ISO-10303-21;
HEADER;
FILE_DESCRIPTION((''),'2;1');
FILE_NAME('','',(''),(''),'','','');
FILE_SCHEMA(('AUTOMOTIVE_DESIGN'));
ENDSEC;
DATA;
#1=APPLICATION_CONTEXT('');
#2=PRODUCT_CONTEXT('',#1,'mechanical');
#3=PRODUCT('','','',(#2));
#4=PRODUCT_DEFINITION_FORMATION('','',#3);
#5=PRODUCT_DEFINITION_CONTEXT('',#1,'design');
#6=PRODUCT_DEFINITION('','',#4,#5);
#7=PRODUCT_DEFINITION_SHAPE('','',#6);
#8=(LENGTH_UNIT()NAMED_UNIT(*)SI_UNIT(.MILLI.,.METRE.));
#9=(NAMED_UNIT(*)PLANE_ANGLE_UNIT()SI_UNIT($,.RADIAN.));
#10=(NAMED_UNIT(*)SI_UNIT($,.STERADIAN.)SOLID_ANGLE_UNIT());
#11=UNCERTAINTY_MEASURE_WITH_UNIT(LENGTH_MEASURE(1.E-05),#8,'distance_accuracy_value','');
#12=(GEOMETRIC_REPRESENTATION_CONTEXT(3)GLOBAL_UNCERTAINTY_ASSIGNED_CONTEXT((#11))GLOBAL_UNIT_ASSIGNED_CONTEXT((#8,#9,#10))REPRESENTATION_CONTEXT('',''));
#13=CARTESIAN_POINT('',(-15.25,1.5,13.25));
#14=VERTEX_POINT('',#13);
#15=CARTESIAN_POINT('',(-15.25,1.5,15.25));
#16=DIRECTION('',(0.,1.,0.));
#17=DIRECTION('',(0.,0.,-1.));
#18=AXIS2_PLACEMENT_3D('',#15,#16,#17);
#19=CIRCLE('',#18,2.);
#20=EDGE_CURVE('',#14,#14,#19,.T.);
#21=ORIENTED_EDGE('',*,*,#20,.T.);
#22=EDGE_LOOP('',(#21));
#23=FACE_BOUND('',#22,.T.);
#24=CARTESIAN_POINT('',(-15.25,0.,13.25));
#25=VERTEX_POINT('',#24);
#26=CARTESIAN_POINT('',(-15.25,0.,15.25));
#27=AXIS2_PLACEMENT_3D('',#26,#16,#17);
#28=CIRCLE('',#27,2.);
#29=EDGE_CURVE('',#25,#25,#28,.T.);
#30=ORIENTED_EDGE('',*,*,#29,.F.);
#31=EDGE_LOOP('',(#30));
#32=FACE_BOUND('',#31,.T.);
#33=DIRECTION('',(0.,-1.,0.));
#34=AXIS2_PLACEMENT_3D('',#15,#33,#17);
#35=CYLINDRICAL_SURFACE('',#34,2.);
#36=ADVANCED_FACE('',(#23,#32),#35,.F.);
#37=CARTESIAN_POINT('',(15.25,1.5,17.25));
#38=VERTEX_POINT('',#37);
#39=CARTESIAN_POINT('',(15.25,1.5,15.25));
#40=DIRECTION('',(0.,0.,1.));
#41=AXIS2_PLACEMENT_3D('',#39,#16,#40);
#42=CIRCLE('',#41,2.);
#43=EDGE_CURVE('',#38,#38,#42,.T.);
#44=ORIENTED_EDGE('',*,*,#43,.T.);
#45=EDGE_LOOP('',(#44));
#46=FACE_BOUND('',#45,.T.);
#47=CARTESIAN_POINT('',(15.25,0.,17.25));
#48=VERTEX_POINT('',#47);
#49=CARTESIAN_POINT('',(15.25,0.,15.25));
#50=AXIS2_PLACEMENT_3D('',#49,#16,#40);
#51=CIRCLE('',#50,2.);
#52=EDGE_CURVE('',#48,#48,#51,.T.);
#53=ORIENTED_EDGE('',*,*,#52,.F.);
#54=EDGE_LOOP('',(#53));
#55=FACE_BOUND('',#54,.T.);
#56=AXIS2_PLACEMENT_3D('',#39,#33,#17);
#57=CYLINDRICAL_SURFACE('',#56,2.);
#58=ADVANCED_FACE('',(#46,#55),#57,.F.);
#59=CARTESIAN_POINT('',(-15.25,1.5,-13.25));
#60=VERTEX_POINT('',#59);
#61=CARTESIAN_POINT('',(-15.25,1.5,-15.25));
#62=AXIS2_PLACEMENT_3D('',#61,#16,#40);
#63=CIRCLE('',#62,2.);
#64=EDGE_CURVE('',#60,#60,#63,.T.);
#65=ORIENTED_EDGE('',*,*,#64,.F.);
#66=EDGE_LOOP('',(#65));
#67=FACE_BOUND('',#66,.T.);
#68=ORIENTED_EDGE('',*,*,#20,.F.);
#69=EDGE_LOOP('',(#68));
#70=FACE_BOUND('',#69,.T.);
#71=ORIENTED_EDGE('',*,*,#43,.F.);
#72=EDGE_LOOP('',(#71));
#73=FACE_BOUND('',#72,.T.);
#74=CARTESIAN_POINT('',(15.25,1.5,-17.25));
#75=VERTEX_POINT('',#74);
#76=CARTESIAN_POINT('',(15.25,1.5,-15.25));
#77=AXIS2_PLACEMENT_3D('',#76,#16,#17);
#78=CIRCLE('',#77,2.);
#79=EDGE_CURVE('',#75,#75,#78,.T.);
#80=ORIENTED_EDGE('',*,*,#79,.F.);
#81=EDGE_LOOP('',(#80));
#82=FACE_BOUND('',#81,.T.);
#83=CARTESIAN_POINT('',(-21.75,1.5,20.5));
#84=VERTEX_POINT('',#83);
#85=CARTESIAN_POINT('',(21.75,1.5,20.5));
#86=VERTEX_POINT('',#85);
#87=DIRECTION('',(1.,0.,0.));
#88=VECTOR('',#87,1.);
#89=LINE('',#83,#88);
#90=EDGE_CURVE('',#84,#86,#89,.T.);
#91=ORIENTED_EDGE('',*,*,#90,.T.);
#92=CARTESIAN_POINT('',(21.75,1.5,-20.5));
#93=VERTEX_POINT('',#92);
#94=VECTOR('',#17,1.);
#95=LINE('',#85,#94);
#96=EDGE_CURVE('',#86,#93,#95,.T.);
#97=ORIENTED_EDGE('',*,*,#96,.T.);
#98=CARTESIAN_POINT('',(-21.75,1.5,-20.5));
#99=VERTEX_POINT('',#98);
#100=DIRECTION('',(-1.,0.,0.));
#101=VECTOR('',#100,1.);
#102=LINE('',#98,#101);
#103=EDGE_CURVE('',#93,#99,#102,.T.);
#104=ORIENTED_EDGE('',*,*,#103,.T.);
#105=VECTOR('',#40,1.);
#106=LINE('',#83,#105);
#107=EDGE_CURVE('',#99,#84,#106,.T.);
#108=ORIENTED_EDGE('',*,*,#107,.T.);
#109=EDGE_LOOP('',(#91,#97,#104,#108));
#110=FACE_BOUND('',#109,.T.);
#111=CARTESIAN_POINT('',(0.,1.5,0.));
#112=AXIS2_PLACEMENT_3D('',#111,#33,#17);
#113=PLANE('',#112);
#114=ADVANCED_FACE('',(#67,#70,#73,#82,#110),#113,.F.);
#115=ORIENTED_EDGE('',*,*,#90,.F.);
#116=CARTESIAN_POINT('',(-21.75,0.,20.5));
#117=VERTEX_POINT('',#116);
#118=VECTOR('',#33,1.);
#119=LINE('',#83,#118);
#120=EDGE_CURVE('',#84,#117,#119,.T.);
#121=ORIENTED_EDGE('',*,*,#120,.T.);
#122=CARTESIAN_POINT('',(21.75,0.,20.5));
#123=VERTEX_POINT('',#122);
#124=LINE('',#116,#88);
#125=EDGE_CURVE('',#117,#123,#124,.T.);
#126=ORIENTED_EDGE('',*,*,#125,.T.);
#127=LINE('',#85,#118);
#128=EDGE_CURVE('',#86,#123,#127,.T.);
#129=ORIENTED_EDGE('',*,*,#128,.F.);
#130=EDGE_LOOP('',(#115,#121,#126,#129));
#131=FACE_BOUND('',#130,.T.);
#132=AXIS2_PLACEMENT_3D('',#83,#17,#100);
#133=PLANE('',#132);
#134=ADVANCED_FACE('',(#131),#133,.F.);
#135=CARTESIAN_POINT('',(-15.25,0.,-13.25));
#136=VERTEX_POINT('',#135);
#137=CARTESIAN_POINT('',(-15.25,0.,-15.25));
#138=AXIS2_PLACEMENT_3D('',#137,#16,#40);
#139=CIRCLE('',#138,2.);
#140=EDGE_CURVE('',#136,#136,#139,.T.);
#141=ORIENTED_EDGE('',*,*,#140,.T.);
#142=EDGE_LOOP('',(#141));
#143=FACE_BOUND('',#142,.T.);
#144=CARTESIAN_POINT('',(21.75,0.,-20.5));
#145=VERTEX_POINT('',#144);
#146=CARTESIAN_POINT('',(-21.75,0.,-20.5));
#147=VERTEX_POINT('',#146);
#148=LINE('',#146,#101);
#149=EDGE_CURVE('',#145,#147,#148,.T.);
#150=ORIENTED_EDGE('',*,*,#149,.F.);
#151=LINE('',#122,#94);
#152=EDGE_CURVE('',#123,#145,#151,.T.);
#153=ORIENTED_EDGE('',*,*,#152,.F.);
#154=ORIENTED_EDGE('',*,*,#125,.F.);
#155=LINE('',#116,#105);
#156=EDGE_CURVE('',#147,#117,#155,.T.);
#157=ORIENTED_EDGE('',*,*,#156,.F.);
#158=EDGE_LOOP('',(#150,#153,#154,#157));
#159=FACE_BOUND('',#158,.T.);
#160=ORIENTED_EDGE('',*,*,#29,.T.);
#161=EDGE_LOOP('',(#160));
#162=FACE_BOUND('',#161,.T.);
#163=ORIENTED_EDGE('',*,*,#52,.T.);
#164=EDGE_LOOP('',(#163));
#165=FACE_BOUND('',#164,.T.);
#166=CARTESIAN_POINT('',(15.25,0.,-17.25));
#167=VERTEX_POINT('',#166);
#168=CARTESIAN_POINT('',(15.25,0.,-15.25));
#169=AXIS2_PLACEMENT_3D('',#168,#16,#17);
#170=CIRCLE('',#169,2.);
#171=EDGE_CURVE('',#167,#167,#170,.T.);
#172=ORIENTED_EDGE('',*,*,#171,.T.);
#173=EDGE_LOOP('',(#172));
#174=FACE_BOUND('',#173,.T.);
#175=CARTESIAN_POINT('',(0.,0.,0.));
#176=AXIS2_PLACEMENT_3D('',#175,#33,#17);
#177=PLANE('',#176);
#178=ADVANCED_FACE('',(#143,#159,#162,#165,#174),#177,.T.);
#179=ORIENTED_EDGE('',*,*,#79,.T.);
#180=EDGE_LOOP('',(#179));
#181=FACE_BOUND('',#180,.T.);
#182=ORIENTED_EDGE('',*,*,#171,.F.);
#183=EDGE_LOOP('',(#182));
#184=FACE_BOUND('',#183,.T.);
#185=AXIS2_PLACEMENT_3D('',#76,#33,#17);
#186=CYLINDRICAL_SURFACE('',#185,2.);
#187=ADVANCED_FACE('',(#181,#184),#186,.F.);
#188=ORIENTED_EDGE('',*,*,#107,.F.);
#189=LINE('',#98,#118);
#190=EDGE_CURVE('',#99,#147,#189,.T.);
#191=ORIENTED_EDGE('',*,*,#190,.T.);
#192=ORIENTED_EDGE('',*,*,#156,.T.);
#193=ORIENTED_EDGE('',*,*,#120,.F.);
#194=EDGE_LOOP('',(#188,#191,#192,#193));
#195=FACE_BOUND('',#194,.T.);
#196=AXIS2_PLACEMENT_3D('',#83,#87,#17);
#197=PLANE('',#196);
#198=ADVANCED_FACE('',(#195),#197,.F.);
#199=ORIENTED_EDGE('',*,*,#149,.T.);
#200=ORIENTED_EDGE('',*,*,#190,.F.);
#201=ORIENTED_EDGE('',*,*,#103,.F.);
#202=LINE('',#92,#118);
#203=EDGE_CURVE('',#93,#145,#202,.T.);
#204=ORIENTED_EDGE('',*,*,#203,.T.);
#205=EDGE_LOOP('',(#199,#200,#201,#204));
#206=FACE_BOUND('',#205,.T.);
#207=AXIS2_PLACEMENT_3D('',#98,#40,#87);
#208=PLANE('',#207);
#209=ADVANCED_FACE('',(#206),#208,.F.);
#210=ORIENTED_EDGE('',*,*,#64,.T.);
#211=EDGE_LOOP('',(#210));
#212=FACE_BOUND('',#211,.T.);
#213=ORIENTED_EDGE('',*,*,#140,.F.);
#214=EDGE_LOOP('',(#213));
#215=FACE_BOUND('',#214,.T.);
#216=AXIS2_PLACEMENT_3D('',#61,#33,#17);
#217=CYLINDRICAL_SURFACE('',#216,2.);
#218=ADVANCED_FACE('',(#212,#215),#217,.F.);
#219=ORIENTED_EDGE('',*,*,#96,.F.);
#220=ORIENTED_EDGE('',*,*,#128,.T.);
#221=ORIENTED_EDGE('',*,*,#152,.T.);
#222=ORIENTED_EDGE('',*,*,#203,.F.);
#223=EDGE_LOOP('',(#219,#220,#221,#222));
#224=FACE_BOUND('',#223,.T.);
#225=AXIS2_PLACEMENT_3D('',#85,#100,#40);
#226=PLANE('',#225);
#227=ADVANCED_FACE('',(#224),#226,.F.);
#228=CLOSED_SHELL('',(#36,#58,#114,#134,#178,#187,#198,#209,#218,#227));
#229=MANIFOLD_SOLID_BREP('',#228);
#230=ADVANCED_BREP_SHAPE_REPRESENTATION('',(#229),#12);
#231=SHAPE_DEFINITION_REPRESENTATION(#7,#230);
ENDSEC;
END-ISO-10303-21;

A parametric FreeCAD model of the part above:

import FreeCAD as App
import Part
import Sketcher

V = App.Vector
Q = App.Units.Quantity


def add_polygon(sketch, points):
    """Adds a closed chain of lines whose ends are joined by coincident constraints."""
    first, n = sketch.GeometryCount, len(points)
    for a, b in zip(points, points[1:] + points[:1]):
        sketch.addGeometry(Part.LineSegment(App.Vector(*a, 0), App.Vector(*b, 0)), False)
    for i in range(n):
        sketch.addConstraint(Sketcher.Constraint("Coincident", first + i, 2, first + (i + 1) % n, 1))

doc = App.newDocument("Part")
body = doc.addObject("PartDesign::Body", "Body")

# Sketch on XZ plane
sketch1 = body.newObject("Sketcher::SketchObject", "Sketch")
sketch1.AttachmentSupport = (doc.getObject("XZ_Plane"), [""])
sketch1.MapMode = "FlatFace"
add_polygon(sketch1, [(-21.8, -20.5), (-21.8, 20.5), (21.8, 20.5), (21.8, -20.5)])  # lines 0-3
sketch1.addGeometry(Part.Circle(V(-15.2, 15.2, 0), V(0, 0, 1), 2), False)  # 4
sketch1.addGeometry(Part.Circle(V(15.2, 15.2, 0), V(0, 0, 1), 2), False)  # 5
sketch1.addGeometry(Part.Circle(V(-15.2, -15.2, 0), V(0, 0, 1), 2), False)  # 6
sketch1.addGeometry(Part.Circle(V(15.2, -15.2, 0), V(0, 0, 1), 2), False)  # 7
sketch1.addConstraint([
    Sketcher.Constraint("Vertical", 0),
    Sketcher.Constraint("Horizontal", 1),
    Sketcher.Constraint("Vertical", 2),
    Sketcher.Constraint("Horizontal", 3),
    Sketcher.Constraint("Equal", 4, 5),
    Sketcher.Constraint("Equal", 5, 6),
    Sketcher.Constraint("Equal", 6, 7),
    Sketcher.Constraint("Symmetric", 5, 3, 6, 3, -1, 1),
    Sketcher.Constraint("Symmetric", 4, 3, 7, 3, -1, 1),
    Sketcher.Constraint("Symmetric", 0, 2, 2, 2, -1, 1),
    Sketcher.Constraint("Symmetric", 4, 3, 5, 3, -2),
    Sketcher.Constraint("Diameter", 4, Q("4 mm")),
    Sketcher.Constraint("DistanceY", 0, 1, 0, 2, Q("41 mm")),
    Sketcher.Constraint("DistanceX", 1, 1, 1, 2, Q("43.5 mm")),
    Sketcher.Constraint("DistanceX", 0, 2, 5, 3, Q("37 mm")),
    Sketcher.Constraint("DistanceY", 6, 3, 4, 3, Q("30.5 mm")),
])
pad1 = body.newObject("PartDesign::Pad", "Pad")
pad1.Profile = sketch1
pad1.Length = 1.5
pad1.Reversed = True

doc.recompute()
